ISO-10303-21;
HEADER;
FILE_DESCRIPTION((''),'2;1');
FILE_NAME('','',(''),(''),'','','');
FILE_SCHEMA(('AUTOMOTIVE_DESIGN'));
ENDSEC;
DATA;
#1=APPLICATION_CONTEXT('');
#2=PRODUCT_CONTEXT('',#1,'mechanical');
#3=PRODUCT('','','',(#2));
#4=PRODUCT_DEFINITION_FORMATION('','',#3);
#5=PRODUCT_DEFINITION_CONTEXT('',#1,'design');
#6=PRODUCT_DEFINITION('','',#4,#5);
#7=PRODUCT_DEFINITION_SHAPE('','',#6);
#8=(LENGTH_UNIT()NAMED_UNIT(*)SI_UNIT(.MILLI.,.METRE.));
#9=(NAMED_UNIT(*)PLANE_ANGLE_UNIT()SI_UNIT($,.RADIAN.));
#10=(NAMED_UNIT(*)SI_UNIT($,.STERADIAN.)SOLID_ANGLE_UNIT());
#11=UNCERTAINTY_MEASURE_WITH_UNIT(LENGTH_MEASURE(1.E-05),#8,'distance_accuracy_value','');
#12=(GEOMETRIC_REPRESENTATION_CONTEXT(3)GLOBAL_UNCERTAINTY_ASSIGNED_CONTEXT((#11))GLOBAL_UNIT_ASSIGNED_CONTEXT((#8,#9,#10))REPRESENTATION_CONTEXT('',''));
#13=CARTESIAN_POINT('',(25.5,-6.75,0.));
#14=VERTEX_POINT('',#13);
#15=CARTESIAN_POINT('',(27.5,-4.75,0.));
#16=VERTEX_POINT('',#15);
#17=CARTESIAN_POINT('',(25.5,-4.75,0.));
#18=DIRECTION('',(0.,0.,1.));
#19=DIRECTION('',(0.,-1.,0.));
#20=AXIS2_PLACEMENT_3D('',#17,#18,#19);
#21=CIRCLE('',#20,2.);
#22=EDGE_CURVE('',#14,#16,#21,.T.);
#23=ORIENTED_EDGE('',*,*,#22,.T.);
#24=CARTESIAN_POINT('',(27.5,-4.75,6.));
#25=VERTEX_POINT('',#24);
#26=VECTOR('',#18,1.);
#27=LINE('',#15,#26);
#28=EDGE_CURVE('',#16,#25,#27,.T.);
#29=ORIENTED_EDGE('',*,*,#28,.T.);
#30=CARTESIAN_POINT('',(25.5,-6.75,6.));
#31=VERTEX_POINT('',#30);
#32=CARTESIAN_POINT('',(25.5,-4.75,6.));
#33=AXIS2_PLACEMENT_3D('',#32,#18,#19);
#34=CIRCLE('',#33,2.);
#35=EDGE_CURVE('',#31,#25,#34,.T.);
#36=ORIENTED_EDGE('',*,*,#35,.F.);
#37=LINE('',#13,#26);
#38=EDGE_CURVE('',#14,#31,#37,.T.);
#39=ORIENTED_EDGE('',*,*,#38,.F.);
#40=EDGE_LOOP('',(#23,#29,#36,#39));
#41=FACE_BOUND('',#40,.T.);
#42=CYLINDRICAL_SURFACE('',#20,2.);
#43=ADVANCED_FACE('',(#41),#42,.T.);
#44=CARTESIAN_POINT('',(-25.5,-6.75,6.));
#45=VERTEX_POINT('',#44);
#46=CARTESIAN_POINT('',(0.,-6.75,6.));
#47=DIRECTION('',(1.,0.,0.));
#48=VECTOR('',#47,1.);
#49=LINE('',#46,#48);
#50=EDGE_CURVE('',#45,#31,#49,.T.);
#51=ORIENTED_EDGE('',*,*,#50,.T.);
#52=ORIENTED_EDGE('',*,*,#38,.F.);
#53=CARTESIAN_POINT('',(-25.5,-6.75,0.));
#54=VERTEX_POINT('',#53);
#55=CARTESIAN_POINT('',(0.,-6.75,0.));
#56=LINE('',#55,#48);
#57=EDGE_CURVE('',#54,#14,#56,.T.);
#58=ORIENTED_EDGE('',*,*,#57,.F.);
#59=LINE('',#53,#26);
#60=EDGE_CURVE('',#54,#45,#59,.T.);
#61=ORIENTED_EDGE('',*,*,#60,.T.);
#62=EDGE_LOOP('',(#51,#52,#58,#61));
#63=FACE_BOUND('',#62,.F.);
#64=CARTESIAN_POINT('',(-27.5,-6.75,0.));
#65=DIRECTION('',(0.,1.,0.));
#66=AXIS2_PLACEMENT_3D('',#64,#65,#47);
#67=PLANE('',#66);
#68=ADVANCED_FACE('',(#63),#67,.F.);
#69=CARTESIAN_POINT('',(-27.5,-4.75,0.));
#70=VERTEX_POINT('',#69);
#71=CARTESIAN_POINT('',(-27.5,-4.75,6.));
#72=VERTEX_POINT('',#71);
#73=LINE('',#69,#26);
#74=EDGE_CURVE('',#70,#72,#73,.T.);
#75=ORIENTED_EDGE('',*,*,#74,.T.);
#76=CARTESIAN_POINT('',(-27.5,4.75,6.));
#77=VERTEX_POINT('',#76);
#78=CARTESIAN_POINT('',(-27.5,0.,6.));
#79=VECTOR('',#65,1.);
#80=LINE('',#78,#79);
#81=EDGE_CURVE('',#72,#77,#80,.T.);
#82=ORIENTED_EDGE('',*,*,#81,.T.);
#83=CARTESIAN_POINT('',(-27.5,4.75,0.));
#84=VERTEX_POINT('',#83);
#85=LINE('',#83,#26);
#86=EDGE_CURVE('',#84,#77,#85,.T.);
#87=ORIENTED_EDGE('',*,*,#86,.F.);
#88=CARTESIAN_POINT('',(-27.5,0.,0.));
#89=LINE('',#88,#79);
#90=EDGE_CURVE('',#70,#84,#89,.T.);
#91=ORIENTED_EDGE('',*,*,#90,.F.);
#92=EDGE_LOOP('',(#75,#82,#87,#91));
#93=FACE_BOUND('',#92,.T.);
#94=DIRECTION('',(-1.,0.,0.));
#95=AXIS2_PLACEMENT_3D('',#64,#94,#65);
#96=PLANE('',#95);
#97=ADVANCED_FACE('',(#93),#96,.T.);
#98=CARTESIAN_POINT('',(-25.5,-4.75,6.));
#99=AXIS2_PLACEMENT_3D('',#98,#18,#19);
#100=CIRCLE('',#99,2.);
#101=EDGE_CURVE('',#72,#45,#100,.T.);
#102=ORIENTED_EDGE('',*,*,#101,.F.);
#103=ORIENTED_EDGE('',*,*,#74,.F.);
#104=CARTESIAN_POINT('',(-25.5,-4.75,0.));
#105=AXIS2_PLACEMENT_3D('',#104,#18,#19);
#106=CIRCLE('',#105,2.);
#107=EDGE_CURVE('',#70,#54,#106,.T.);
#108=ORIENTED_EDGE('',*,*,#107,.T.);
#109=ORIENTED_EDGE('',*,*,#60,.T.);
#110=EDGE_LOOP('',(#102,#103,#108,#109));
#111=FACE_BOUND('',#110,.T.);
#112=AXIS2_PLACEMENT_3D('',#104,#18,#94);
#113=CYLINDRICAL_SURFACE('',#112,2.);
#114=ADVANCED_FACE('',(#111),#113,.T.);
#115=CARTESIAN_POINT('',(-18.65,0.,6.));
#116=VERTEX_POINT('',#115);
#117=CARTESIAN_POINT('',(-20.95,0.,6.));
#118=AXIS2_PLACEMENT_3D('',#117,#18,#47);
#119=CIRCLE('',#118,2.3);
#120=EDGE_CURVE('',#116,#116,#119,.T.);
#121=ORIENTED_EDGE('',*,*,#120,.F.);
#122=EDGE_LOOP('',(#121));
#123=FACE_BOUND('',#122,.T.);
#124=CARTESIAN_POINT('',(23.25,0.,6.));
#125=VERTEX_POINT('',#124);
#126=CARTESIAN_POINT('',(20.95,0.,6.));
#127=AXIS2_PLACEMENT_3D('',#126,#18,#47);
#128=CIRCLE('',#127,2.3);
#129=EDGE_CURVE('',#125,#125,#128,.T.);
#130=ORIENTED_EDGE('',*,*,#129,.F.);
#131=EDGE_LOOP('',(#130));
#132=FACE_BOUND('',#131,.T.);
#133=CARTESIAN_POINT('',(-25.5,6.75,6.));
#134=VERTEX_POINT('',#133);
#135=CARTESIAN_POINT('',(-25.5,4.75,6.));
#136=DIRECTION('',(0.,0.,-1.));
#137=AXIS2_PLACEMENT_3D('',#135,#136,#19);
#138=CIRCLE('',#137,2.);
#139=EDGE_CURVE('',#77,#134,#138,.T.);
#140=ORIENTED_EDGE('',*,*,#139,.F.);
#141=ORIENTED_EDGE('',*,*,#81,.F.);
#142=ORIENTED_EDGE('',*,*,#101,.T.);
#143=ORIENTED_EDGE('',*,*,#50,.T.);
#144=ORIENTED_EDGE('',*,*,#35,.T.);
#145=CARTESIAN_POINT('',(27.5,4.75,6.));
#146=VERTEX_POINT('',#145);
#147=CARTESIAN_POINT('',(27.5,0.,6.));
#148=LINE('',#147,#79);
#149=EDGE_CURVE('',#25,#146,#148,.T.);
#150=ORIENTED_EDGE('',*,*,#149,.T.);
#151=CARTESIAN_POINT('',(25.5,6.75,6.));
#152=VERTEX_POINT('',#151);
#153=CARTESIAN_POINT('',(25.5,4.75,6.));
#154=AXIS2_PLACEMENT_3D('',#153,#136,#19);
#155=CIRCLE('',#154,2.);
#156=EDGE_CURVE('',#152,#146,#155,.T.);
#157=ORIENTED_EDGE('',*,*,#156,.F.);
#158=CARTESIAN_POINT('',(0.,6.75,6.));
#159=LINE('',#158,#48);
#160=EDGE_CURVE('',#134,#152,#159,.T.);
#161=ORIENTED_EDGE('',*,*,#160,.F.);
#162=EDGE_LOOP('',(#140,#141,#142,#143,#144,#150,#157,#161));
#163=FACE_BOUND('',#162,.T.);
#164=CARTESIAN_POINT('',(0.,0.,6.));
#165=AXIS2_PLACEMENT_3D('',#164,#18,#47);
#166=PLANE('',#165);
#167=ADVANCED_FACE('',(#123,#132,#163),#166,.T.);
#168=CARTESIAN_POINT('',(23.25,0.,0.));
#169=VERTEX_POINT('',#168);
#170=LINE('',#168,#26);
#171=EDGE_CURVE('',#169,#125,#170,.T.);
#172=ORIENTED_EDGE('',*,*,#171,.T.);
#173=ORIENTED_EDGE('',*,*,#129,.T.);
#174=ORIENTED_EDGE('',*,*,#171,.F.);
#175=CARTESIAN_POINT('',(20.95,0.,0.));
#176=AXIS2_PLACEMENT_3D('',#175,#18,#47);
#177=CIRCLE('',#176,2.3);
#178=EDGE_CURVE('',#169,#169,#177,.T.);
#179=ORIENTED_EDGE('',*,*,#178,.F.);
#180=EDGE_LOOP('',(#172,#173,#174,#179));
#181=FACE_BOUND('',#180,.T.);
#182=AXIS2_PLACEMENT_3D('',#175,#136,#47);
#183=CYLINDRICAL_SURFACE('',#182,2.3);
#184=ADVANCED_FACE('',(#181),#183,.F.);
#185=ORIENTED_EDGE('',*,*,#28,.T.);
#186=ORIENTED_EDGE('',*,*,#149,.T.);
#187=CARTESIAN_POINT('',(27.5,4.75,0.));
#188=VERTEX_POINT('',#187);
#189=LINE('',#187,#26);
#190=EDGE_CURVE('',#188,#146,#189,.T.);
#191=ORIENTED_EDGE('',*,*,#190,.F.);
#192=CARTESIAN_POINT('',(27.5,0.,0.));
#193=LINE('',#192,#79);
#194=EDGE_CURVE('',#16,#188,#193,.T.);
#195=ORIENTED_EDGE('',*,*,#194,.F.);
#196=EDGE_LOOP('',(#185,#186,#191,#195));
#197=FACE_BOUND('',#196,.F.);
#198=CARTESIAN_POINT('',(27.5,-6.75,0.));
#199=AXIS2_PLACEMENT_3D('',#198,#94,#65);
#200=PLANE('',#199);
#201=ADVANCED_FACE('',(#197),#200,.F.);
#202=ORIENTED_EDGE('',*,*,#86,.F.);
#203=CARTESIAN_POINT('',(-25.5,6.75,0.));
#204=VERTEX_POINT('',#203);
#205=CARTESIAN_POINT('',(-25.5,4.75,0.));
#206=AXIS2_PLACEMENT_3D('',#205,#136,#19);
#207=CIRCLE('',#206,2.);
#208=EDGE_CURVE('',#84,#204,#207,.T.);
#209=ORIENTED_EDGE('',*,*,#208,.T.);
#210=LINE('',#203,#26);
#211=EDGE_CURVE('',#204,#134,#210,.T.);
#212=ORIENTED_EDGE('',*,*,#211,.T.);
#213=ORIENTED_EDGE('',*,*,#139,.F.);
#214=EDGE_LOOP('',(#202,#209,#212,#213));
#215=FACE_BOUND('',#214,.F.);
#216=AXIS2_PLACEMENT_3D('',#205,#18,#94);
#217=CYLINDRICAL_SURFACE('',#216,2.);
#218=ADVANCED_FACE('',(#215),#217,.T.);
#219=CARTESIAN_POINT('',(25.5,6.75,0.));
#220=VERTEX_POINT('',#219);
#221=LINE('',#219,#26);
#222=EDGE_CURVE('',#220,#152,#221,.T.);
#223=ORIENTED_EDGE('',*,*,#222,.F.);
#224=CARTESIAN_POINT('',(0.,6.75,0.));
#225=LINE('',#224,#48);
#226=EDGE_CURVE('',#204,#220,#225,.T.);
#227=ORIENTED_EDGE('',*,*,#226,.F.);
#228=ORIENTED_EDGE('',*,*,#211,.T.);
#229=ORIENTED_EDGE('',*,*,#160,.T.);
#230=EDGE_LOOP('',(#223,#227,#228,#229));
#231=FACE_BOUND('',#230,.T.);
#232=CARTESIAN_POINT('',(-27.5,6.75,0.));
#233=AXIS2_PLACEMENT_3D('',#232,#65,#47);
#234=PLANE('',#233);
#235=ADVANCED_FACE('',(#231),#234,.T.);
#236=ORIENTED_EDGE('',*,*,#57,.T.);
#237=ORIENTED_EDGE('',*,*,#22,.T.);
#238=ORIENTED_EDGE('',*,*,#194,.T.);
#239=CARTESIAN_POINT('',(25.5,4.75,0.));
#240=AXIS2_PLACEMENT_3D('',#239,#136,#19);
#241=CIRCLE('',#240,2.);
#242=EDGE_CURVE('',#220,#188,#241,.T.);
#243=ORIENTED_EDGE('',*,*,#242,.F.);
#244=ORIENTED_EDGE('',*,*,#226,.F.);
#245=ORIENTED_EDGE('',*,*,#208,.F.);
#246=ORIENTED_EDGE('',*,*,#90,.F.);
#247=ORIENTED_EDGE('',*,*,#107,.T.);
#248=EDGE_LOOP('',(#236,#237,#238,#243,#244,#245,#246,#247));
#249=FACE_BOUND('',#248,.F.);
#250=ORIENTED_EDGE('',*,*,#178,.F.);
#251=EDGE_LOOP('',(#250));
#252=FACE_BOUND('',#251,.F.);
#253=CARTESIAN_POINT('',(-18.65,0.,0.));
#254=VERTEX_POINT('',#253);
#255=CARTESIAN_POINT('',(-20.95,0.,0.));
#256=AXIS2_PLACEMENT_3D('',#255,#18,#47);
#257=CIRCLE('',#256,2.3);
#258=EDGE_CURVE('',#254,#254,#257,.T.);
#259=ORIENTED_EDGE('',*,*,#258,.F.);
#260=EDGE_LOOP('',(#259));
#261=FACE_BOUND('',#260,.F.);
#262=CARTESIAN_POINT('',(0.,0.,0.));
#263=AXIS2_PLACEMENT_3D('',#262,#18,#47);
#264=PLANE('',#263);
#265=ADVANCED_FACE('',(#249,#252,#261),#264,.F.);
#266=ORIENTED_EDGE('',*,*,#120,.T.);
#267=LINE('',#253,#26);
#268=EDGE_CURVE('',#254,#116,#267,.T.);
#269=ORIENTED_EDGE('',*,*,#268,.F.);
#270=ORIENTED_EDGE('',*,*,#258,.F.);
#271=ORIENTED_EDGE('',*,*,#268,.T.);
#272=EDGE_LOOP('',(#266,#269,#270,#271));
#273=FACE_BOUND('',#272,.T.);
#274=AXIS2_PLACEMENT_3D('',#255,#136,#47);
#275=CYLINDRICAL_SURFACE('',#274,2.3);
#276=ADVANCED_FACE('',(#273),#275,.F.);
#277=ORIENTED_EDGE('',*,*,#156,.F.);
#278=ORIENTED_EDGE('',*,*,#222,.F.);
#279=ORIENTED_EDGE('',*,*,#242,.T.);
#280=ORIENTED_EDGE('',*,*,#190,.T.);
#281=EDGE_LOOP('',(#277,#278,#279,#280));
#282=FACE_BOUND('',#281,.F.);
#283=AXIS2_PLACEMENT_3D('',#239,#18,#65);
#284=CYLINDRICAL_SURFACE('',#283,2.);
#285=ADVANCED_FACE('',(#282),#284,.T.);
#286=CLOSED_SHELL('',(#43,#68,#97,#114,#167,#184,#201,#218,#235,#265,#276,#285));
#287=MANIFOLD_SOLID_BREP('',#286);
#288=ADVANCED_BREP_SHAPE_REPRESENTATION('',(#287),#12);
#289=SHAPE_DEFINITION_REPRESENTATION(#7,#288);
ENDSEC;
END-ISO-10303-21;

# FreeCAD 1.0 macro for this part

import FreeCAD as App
import Part
import Sketcher
Q = App.Units.Quantity


def edges_at(feature, points):
    """Names of the edges that pass closest to the given points."""
    edges = feature.Shape.Edges
    near = lambda p: min(range(len(edges)), key=lambda i: edges[i].distToShape(Part.Vertex(*p))[0])
    return sorted({f"Edge{near(p) + 1}" for p in points})

doc = App.newDocument("Part")
body = doc.addObject("PartDesign::Body", "Body")

# Sketch on XY plane
sketch1 = body.newObject("Sketcher::SketchObject", "Sketch")
sketch1.AttachmentSupport = (doc.getObject("XY_Plane"), [""])
sketch1.MapMode = "FlatFace"
sketch1.addGeometry([
    Part.LineSegment(App.Vector(-27.5, 6.75, 0), App.Vector(-27.5, -6.75, 0)),  # 0
    Part.LineSegment(App.Vector(-27.5, -6.75, 0), App.Vector(27.5, -6.75, 0)),  # 1
    Part.LineSegment(App.Vector(27.5, -6.75, 0), App.Vector(27.5, 6.75, 0)),  # 2
    Part.LineSegment(App.Vector(27.5, 6.75, 0), App.Vector(-27.5, 6.75, 0)),  # 3
    Part.Circle(App.Vector(-20.95, 0, 0), App.Vector(0, 0, 1), 2.3),  # 4
    Part.Circle(App.Vector(20.95, 0, 0), App.Vector(0, 0, 1), 2.3),  # 5
], False)
sketch1.addConstraint([
    Sketcher.Constraint("Coincident", 0, 2, 1, 1),
    Sketcher.Constraint("Coincident", 1, 2, 2, 1),
    Sketcher.Constraint("Coincident", 2, 2, 3, 1),
    Sketcher.Constraint("Coincident", 3, 2, 0, 1),
    Sketcher.Constraint("Vertical", 0),
    Sketcher.Constraint("Horizontal", 1),
    Sketcher.Constraint("Vertical", 2),
    Sketcher.Constraint("Horizontal", 3),
    Sketcher.Constraint("Equal", 4, 5),
    Sketcher.Constraint("Symmetric", 4, 3, 5, 3, -1, 1),
    Sketcher.Constraint("Symmetric", 0, 2, 2, 2, -1, 1),
    Sketcher.Constraint("PointOnObject", 4, 3, -1),
    Sketcher.Constraint("Diameter", 4, Q("4.6 mm")),
    Sketcher.Constraint("DistanceX", 1, 1, 1, 2, Q("55 mm")),
    Sketcher.Constraint("DistanceY", 0, 2, 0, 1, Q("13.5 mm")),
    Sketcher.Constraint("DistanceX", 4, 3, 5, 3, Q("41.9 mm")),
])
pad1 = body.newObject("PartDesign::Pad", "Pad")
pad1.Profile = sketch1
pad1.Length = 6
doc.recompute()

fillet = body.newObject("PartDesign::Fillet", "Fillet")
fillet.Base = (pad1, edges_at(pad1, [
    (-27.5, -6.75, 3),
    (-27.5, 6.75, 3),
    (27.5, 6.75, 3),
    (27.5, -6.75, 3),
]))
fillet.Radius = 2

doc.recompute()
